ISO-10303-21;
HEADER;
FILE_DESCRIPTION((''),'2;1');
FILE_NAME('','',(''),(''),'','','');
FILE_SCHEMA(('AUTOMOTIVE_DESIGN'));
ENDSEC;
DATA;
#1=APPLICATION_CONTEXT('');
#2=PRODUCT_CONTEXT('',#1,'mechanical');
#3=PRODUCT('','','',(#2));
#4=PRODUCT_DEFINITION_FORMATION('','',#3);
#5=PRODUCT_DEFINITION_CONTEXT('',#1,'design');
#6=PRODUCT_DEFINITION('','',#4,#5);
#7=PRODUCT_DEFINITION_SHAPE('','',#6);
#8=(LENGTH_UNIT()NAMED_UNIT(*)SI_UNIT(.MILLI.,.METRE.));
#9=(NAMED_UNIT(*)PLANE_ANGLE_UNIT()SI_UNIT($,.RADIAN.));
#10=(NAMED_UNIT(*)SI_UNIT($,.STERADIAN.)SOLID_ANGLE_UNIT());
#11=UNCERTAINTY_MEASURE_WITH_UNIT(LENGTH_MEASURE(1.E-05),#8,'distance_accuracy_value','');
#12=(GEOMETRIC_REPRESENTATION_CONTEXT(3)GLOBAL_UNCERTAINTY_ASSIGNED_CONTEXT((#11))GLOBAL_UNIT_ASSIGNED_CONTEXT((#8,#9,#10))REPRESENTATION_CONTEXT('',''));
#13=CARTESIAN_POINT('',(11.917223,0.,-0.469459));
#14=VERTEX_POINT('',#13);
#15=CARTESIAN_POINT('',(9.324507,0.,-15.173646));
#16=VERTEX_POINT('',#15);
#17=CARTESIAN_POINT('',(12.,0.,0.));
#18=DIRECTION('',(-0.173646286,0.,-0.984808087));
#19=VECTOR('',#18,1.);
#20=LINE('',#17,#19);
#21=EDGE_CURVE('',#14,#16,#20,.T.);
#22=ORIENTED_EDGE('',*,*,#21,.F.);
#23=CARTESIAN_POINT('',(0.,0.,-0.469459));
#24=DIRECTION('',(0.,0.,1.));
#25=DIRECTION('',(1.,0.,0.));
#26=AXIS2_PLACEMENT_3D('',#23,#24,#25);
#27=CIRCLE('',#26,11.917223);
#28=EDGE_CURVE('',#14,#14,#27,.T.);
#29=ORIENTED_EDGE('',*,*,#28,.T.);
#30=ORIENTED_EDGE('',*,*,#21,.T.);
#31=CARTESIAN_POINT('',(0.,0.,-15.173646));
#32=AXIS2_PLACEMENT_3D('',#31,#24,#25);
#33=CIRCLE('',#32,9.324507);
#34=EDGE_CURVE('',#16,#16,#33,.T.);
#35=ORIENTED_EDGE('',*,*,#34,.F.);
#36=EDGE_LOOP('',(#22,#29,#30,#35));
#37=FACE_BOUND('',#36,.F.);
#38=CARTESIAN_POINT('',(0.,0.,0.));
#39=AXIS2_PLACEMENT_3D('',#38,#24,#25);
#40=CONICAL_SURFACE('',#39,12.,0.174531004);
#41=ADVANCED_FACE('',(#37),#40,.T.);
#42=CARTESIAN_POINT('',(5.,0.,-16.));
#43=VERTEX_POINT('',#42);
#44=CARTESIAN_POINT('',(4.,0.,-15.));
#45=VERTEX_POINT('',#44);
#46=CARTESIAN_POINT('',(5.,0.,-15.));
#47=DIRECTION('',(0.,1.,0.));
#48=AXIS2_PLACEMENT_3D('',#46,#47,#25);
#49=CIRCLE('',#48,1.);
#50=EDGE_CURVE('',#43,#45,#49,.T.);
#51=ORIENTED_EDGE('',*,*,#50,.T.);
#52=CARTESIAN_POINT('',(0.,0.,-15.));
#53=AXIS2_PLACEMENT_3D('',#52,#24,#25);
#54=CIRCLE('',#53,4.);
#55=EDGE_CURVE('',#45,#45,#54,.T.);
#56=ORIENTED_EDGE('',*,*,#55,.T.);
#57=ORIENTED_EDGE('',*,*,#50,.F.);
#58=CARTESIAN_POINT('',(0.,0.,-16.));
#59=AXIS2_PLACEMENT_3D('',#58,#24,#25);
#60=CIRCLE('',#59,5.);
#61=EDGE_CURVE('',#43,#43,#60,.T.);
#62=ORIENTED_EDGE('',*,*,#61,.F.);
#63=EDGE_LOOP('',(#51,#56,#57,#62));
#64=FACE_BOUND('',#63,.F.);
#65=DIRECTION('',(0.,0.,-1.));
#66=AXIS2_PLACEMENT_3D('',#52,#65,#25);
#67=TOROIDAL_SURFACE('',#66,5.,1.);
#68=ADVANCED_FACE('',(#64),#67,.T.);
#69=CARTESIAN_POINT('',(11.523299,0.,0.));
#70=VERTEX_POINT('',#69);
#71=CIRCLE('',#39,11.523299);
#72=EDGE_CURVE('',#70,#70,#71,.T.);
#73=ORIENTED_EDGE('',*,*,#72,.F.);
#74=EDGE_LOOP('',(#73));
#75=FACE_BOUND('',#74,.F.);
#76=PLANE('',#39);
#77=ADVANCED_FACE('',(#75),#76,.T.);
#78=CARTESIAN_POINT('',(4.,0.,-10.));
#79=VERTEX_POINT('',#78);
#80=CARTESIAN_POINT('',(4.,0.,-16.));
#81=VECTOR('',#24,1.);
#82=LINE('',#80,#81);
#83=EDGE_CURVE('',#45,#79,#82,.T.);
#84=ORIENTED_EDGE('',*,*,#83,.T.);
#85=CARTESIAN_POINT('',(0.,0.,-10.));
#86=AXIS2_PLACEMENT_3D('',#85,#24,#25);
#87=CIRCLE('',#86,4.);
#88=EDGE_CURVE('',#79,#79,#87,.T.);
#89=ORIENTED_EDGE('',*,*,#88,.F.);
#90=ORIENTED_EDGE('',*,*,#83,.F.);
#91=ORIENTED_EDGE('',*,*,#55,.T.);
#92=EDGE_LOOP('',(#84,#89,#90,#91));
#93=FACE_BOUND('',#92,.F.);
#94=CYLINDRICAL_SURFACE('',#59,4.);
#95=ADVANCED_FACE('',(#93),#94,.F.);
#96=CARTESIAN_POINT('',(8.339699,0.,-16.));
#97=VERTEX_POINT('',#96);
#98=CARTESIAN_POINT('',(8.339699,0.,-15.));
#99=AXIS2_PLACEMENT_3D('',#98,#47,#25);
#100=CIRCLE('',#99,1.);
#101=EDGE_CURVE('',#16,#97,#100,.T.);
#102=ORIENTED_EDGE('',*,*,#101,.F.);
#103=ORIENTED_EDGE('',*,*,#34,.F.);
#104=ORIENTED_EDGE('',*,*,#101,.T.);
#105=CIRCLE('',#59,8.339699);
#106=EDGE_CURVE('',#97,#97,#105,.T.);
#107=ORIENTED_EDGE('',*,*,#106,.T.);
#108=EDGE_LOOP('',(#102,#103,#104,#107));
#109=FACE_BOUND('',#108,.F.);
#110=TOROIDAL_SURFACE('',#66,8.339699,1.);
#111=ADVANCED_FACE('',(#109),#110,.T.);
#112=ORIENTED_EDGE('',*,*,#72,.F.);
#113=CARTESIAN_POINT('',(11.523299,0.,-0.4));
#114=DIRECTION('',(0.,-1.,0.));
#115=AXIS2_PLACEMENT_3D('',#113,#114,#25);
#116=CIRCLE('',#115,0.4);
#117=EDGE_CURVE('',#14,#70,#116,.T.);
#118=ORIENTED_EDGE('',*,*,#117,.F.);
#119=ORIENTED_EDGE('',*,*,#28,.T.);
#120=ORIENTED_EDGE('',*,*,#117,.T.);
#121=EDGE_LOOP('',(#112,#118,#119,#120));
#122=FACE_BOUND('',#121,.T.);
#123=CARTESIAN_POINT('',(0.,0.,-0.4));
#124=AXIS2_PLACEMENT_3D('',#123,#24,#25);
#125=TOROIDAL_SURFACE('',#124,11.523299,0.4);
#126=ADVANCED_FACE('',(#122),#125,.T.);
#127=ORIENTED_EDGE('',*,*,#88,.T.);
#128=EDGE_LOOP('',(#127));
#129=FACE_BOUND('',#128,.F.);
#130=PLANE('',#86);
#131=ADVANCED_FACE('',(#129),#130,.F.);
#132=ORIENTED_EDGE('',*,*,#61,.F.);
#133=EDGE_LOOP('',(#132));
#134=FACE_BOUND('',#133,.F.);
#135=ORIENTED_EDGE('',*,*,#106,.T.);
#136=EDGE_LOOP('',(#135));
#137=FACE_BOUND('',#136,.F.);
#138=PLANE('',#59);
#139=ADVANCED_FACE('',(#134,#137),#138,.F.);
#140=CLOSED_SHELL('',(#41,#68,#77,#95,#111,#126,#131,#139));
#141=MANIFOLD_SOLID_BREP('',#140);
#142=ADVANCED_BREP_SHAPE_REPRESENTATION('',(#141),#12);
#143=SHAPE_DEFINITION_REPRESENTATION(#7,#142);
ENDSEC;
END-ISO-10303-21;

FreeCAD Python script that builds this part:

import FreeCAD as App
import Part
import Sketcher
from FreeCAD import Vector
Q = App.Units.Quantity


def edges_at(feature, points):
    """Names of the edges that pass closest to the given points."""
    edges = feature.Shape.Edges
    near = lambda p: min(range(len(edges)), key=lambda i: edges[i].distToShape(Part.Vertex(*p))[0])
    return sorted({f"Edge{near(p) + 1}" for p in points})

doc = App.newDocument("Part")
body = doc.addObject("PartDesign::Body", "Body")

# Sketch on XZ plane
sketch1 = doc.addObject("Sketcher::SketchObject", "Sketch")
body.addObject(sketch1)
sketch1.AttachmentSupport = (doc.XZ_Plane, [""])
sketch1.MapMode = "FlatFace"
sketch1.addGeometry(Part.LineSegment(Vector(0, -10, 0), Vector(0, 0, 0)), False)
sketch1.addGeometry(Part.LineSegment(Vector(0, 0, 0), Vector(12, 0, 0)), False)
sketch1.addGeometry(Part.LineSegment(Vector(12, 0, 0), Vector(9.1788, -16, 0)), False)
sketch1.addGeometry(Part.LineSegment(Vector(9.1788, -16, 0), Vector(4, -16, 0)), False)
sketch1.addGeometry(Part.LineSegment(Vector(4, -16, 0), Vector(4, -10, 0)), False)
sketch1.addGeometry(Part.LineSegment(Vector(4, -10, 0), Vector(0, -10, 0)), False)
sketch1.addConstraint(Sketcher.Constraint("Coincident", 0, 2, 1, 1))
sketch1.addConstraint(Sketcher.Constraint("Coincident", 1, 2, 2, 1))
sketch1.addConstraint(Sketcher.Constraint("Coincident", 2, 2, 3, 1))
sketch1.addConstraint(Sketcher.Constraint("Coincident", 3, 2, 4, 1))
sketch1.addConstraint(Sketcher.Constraint("Coincident", 4, 2, 5, 1))
sketch1.addConstraint(Sketcher.Constraint("Coincident", 5, 2, 0, 1))
sketch1.addConstraint(Sketcher.Constraint("Vertical", 0))
sketch1.addConstraint(Sketcher.Constraint("Horizontal", 1))
sketch1.addConstraint(Sketcher.Constraint("Horizontal", 3))
sketch1.addConstraint(Sketcher.Constraint("Vertical", 4))
sketch1.addConstraint(Sketcher.Constraint("Horizontal", 5))
sketch1.addConstraint(Sketcher.Constraint("Coincident", 0, 2, -1, 1))
sketch1.addConstraint(Sketcher.Constraint("DistanceX", 1, 1, 1, 2, Q("12 mm")))
sketch1.addConstraint(Sketcher.Constraint("DistanceX", 5, 2, 5, 1, Q("4 mm")))
sketch1.addConstraint(Sketcher.Constraint("DistanceY", 4, 1, 4, 2, Q("6 mm")))
sketch1.addConstraint(Sketcher.Constraint("DistanceY", 2, 2, -1, 1, Q("16 mm")))
sketch1.addConstraint(Sketcher.Constraint("Angle", 2, Q("-100 deg")))
revolution = doc.addObject("PartDesign::Revolution", "Revolution")
body.addObject(revolution)
revolution.Profile = sketch1
revolution.ReferenceAxis = (sketch1, ["V_Axis"])
revolution.Angle = 360
doc.recompute()

fillet = doc.addObject("PartDesign::Fillet", "Fillet")
body.addObject(fillet)
fillet.Base = (revolution, edges_at(revolution, [(-11.188, -4.339, 0)]))
fillet.Radius = 0.4
doc.recompute()

fillet2 = doc.addObject("PartDesign::Fillet", "Fillet001")
body.addObject(fillet2)
fillet2.Base = (fillet, edges_at(fillet, [(-3.729, -1.446, -16), (-8.558, -3.319, -16)]))
fillet2.Radius = 1

doc.recompute()
